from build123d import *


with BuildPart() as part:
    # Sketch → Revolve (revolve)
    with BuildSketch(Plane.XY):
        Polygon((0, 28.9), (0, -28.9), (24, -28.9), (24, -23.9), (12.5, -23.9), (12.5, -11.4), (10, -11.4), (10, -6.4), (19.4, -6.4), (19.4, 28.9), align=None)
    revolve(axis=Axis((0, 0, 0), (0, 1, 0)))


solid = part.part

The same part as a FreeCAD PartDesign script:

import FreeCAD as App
import Part
import Sketcher
from FreeCAD import Vector

doc = App.newDocument("Part")
body = doc.addObject("PartDesign::Body", "Body")

# Sketch on XY plane
sketch1 = body.newObject("Sketcher::SketchObject", "Sketch")
sketch1.AttachmentSupport = (doc.getObject("XY_Plane"), [""])
sketch1.MapMode = "FlatFace"
sketch1.addGeometry([
    Part.LineSegment(Vector(0, 28.9, 0), Vector(0, -28.9, 0)),  # 0
    Part.LineSegment(Vector(0, -28.9, 0), Vector(24, -28.9, 0)),  # 1
    Part.LineSegment(Vector(24, -28.9, 0), Vector(24, -23.9, 0)),  # 2
    Part.LineSegment(Vector(24, -23.9, 0), Vector(12.5, -23.9, 0)),  # 3
    Part.LineSegment(Vector(12.5, -23.9, 0), Vector(12.5, -11.4, 0)),  # 4
    Part.LineSegment(Vector(12.5, -11.4, 0), Vector(10, -11.4, 0)),  # 5
    Part.LineSegment(Vector(10, -11.4, 0), Vector(10, -6.4, 0)),  # 6
    Part.LineSegment(Vector(10, -6.4, 0), Vector(19.4, -6.4, 0)),  # 7
    Part.LineSegment(Vector(19.4, -6.4, 0), Vector(19.4, 28.9, 0)),  # 8
    Part.LineSegment(Vector(19.4, 28.9, 0), Vector(0, 28.9, 0)),  # 9
], False)
sketch1.addConstraint([
    Sketcher.Constraint("Coincident", 0, 2, 1, 1),
    Sketcher.Constraint("Coincident", 1, 2, 2, 1),
    Sketcher.Constraint("Coincident", 2, 2, 3, 1),
    Sketcher.Constraint("Coincident", 3, 2, 4, 1),
    Sketcher.Constraint("Coincident", 4, 2, 5, 1),
    Sketcher.Constraint("Coincident", 5, 2, 6, 1),
    Sketcher.Constraint("Coincident", 6, 2, 7, 1),
    Sketcher.Constraint("Coincident", 7, 2, 8, 1),
    Sketcher.Constraint("Coincident", 8, 2, 9, 1),
    Sketcher.Constraint("Coincident", 9, 2, 0, 1),
    Sketcher.Constraint("Vertical", 0),
    Sketcher.Constraint("Horizontal", 1),
    Sketcher.Constraint("Vertical", 2),
    Sketcher.Constraint("Horizontal", 3),
    Sketcher.Constraint("Vertical", 4),
    Sketcher.Constraint("Horizontal", 5),
    Sketcher.Constraint("Vertical", 6),
    Sketcher.Constraint("Horizontal", 7),
    Sketcher.Constraint("Vertical", 8),
    Sketcher.Constraint("Horizontal", 9),
    Sketcher.Constraint("Symmetric", 0, 2, 9, 2, -1, 1),
    Sketcher.Constraint("Equal", 2, 6),
    Sketcher.Constraint("DistanceX", 1, 1, 1, 2, 24.0),
    Sketcher.Constraint("DistanceY", 2, 1, 2, 2, 5.0),
    Sketcher.Constraint("DistanceX", 3, 2, 3, 1, 11.5),
    Sketcher.Constraint("DistanceX", 5, 2, 5, 1, 2.5),
    Sketcher.Constraint("DistanceX", 7, 1, 7, 2, 9.4),
    Sketcher.Constraint("DistanceY", 0, 2, 0, 1, 57.8),
    Sketcher.Constraint("DistanceY", 4, 1, 4, 2, 12.5),
])
revolution = body.newObject("PartDesign::Revolution", "Revolution")
revolution.Profile = sketch1
revolution.ReferenceAxis = (sketch1, ["V_Axis"])
revolution.Angle = 360

doc.recompute()
